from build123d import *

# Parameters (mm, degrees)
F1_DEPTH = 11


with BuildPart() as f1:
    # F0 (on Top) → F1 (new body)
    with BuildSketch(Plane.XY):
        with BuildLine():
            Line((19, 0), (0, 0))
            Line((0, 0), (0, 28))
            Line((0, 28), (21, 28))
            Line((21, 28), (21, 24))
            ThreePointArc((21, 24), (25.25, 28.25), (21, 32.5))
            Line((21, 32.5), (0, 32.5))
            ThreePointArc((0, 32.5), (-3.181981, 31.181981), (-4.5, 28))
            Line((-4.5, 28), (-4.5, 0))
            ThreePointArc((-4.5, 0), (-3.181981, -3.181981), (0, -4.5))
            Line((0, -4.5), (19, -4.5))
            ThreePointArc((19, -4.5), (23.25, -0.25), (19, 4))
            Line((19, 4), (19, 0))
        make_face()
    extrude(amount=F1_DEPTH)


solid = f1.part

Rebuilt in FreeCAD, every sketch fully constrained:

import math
import FreeCAD as App
import Part
import Sketcher

doc = App.newDocument("Part")
body = doc.addObject("PartDesign::Body", "Body")

# Sketch on XY plane
sketch1 = doc.addObject("Sketcher::SketchObject", "Sketch")
body.addObject(sketch1)
sketch1.AttachmentSupport = (doc.XY_Plane, [""])
sketch1.MapMode = "FlatFace"
sketch1.addGeometry([
    Part.LineSegment(App.Vector(19, 0, 0), App.Vector(0, 0, 0)),  # 0
    Part.LineSegment(App.Vector(0, 0, 0), App.Vector(0, 28, 0)),  # 1
    Part.LineSegment(App.Vector(0, 28, 0), App.Vector(21, 28, 0)),  # 2
    Part.LineSegment(App.Vector(21, 28, 0), App.Vector(21, 24, 0)),  # 3
    Part.ArcOfCircle(Part.Circle(App.Vector(21, 28.2, 0), App.Vector(0, 0, 1), 4.2), math.radians(-90), math.radians(90)),  # 4
    Part.LineSegment(App.Vector(21, 32.5, 0), App.Vector(0, 32.5, 0)),  # 5
    Part.ArcOfCircle(Part.Circle(App.Vector(0, 28, 0), App.Vector(0, 0, 1), 4.5), math.radians(90), math.radians(180)),  # 6
    Part.LineSegment(App.Vector(-4.5, 28, 0), App.Vector(-4.5, 0, 0)),  # 7
    Part.ArcOfCircle(Part.Circle(App.Vector(0, 0, 0), App.Vector(0, 0, 1), 4.5), math.radians(180), math.radians(270)),  # 8
    Part.LineSegment(App.Vector(0, -4.5, 0), App.Vector(19, -4.5, 0)),  # 9
    Part.ArcOfCircle(Part.Circle(App.Vector(19, -0.2, 0), App.Vector(0, 0, 1), 4.2), math.radians(-90), math.radians(90)),  # 10
    Part.LineSegment(App.Vector(19, 4, 0), App.Vector(19, 0, 0)),  # 11
], False)
sketch1.addConstraint([
    Sketcher.Constraint("Coincident", 0, 2, 1, 1),
    Sketcher.Constraint("Coincident", 1, 2, 2, 1),
    Sketcher.Constraint("Coincident", 2, 2, 3, 1),
    Sketcher.Constraint("Coincident", 3, 2, 4, 1),
    Sketcher.Constraint("Tangent", 4, 2, 5, 1),
    Sketcher.Constraint("Tangent", 5, 2, 6, 1),
    Sketcher.Constraint("Tangent", 6, 2, 7, 1),
    Sketcher.Constraint("Tangent", 7, 2, 8, 1),
    Sketcher.Constraint("Tangent", 8, 2, 9, 1),
    Sketcher.Constraint("Tangent", 9, 2, 10, 1),
    Sketcher.Constraint("Coincident", 10, 2, 11, 1),
    Sketcher.Constraint("Coincident", 11, 2, 0, 1),
    Sketcher.Constraint("Horizontal", 0),
    Sketcher.Constraint("Vertical", 1),
    Sketcher.Constraint("Horizontal", 2),
    Sketcher.Constraint("Vertical", 3),
    Sketcher.Constraint("Horizontal", 5),
    Sketcher.Constraint("Vertical", 7),
    Sketcher.Constraint("Horizontal", 9),
    Sketcher.Constraint("Vertical", 11),
    Sketcher.Constraint("Coincident", 8, 3, -1, 1),
    Sketcher.Constraint("Coincident", 0, 2, -1, 1),
    Sketcher.Constraint("Coincident", 1, 2, 6, 3),
    Sketcher.Constraint("Equal", 4, 10),
    Sketcher.Constraint("Vertical", 4, 3, 2, 2),
    Sketcher.Constraint("Vertical", 9, 2, 10, 2),
    Sketcher.Constraint("Radius", 6, 4.499998),
    Sketcher.Constraint("DistanceX", 0, 2, 0, 1, 19.0),
    Sketcher.Constraint("DistanceX", 2, 1, 2, 2, 21.0),
    Sketcher.Constraint("DistanceY", 1, 1, 1, 2, 28.0),
    Sketcher.Constraint("DistanceY", 3, 2, 3, 1, 4.0),
])
pad1 = doc.addObject("PartDesign::Pad", "Pad")
body.addObject(pad1)
pad1.Profile = sketch1
pad1.Length = 11

doc.recompute()
